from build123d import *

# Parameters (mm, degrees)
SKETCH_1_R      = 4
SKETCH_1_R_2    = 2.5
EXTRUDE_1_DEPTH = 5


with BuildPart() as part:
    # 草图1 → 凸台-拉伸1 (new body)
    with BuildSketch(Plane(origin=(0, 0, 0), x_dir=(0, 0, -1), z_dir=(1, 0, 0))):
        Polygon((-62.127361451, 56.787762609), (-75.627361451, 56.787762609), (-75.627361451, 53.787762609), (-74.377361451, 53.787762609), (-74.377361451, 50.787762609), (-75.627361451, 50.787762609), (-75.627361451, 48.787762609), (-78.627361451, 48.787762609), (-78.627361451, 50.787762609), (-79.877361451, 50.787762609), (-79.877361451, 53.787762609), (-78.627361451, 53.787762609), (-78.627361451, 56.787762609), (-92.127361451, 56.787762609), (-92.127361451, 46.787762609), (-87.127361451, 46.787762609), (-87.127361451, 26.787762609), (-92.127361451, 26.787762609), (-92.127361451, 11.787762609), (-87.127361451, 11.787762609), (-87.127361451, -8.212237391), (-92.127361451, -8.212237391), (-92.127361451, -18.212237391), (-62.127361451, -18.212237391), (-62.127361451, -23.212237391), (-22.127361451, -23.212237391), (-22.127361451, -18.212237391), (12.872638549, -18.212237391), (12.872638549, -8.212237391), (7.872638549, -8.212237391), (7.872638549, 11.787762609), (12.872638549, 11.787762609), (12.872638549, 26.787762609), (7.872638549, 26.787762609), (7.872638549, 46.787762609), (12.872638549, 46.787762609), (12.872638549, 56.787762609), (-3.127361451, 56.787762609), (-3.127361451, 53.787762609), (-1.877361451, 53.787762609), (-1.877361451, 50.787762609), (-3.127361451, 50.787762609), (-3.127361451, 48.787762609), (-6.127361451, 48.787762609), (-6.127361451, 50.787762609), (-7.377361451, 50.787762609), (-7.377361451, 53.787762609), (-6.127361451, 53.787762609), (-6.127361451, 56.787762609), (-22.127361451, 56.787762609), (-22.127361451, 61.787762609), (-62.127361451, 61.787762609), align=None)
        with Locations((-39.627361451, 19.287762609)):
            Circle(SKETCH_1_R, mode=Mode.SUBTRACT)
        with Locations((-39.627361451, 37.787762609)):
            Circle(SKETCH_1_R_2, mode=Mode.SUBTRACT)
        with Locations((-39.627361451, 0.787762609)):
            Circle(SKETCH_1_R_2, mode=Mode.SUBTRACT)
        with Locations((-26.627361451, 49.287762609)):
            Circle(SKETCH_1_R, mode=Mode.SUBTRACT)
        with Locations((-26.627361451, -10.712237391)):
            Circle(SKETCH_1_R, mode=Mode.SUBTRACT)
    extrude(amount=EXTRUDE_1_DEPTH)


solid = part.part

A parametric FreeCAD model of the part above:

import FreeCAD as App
import Part
import Sketcher
Q = App.Units.Quantity


def add_polygon(sketch, points):
    """Adds a closed chain of lines whose ends are joined by coincident constraints."""
    first, n = sketch.GeometryCount, len(points)
    for a, b in zip(points, points[1:] + points[:1]):
        sketch.addGeometry(Part.LineSegment(App.Vector(*a, 0), App.Vector(*b, 0)), False)
    for i in range(n):
        sketch.addConstraint(Sketcher.Constraint("Coincident", first + i, 2, first + (i + 1) % n, 1))

doc = App.newDocument("Part")
params = doc.addObject("Spreadsheet::Sheet", "Params")
for row, (alias, value) in enumerate([
    ("sketch1_diameter", "5 mm"),
    ("sketch1_diameter2", "8 mm"),
    ("sketch1_width", "3 mm"),
    ("sketch1_width2", "2 mm"),
    ("sketch1_width3", "10 mm"),
    ("pad1_length", "5 mm"),
], start=1):
    params.set(f"A{row}", alias)
    params.set(f"B{row}", "=" + value)
    params.setAlias(f"B{row}", alias)

body = doc.addObject("PartDesign::Body", "Body")

sketch1 = doc.addObject("Sketcher::SketchObject", "Sketch")
body.addObject(sketch1)
sketch1.AttachmentSupport = (doc.YZ_Plane, [""])
sketch1.MapMode = "FlatFace"
add_polygon(sketch1, [(56.787763, 62.127361), (56.787763, 75.627361), (53.787763, 75.627361), (53.787763, 74.377361), (50.787763, 74.377361), (50.787763, 75.627361), (48.787763, 75.627361), (48.787763, 78.627361), (50.787763, 78.627361), (50.787763, 79.877361), (53.787763, 79.877361), (53.787763, 78.627361), (56.787763, 78.627361), (56.787763, 92.127361), (46.787763, 92.127361), (46.787763, 87.127361), (26.787763, 87.127361), (26.787763, 92.127361), (11.787763, 92.127361), (11.787763, 87.127361), (-8.212237, 87.127361), (-8.212237, 92.127361), (-18.212237, 92.127361), (-18.212237, 62.127361), (-23.212237, 62.127361), (-23.212237, 22.127361), (-18.212237, 22.127361), (-18.212237, -12.872639), (-8.212237, -12.872639), (-8.212237, -7.872639), (11.787763, -7.872639), (11.787763, -12.872639), (26.787763, -12.872639), (26.787763, -7.872639), (46.787763, -7.872639), (46.787763, -12.872639), (56.787763, -12.872639), (56.787763, 3.127361), (53.787763, 3.127361), (53.787763, 1.877361), (50.787763, 1.877361), (50.787763, 3.127361), (48.787763, 3.127361), (48.787763, 6.127361), (50.787763, 6.127361), (50.787763, 7.377361), (53.787763, 7.377361), (53.787763, 6.127361), (56.787763, 6.127361), (56.787763, 22.127361), (61.787763, 22.127361), (61.787763, 62.127361)])
sketch1.addGeometry(Part.Circle(App.Vector(0.787763, 39.627361, 0), App.Vector(0, 0, 1), 2.5), False)
sketch1.addGeometry(Part.Circle(App.Vector(-10.712237, 26.627361, 0), App.Vector(0, 0, 1), 4), False)
sketch1.addGeometry(Part.Circle(App.Vector(19.287763, 39.627361, 0), App.Vector(0, 0, 1), 4), False)
sketch1.addGeometry(Part.Circle(App.Vector(37.787763, 39.627361, 0), App.Vector(0, 0, 1), 2.5), False)
sketch1.addGeometry(Part.Circle(App.Vector(49.287763, 26.627361, 0), App.Vector(0, 0, 1), 4), False)
sketch1.addConstraint([
    Sketcher.Constraint("Vertical", 0),
    Sketcher.Constraint("Horizontal", 1),
    Sketcher.Constraint("Vertical", 2),
    Sketcher.Constraint("Horizontal", 3),
    Sketcher.Constraint("Vertical", 4),
    Sketcher.Constraint("Horizontal", 5),
    Sketcher.Constraint("Vertical", 6),
    Sketcher.Constraint("Horizontal", 7),
    Sketcher.Constraint("Vertical", 8),
    Sketcher.Constraint("Horizontal", 9),
    Sketcher.Constraint("Vertical", 10),
    Sketcher.Constraint("Horizontal", 11),
    Sketcher.Constraint("Vertical", 12),
    Sketcher.Constraint("Horizontal", 13),
    Sketcher.Constraint("Vertical", 14),
    Sketcher.Constraint("Horizontal", 15),
    Sketcher.Constraint("Vertical", 16),
    Sketcher.Constraint("Horizontal", 17),
    Sketcher.Constraint("Vertical", 18),
    Sketcher.Constraint("Horizontal", 19),
    Sketcher.Constraint("Vertical", 20),
    Sketcher.Constraint("Horizontal", 21),
    Sketcher.Constraint("Vertical", 22),
    Sketcher.Constraint("Horizontal", 23),
    Sketcher.Constraint("Vertical", 24),
    Sketcher.Constraint("Horizontal", 25),
    Sketcher.Constraint("Vertical", 26),
    Sketcher.Constraint("Horizontal", 27),
    Sketcher.Constraint("Vertical", 28),
    Sketcher.Constraint("Horizontal", 29),
    Sketcher.Constraint("Vertical", 30),
    Sketcher.Constraint("Horizontal", 31),
    Sketcher.Constraint("Vertical", 32),
    Sketcher.Constraint("Horizontal", 33),
    Sketcher.Constraint("Vertical", 34),
    Sketcher.Constraint("Horizontal", 35),
    Sketcher.Constraint("Vertical", 36),
    Sketcher.Constraint("Horizontal", 37),
    Sketcher.Constraint("Vertical", 38),
    Sketcher.Constraint("Horizontal", 39),
    Sketcher.Constraint("Vertical", 40),
    Sketcher.Constraint("Horizontal", 41),
    Sketcher.Constraint("Vertical", 42),
    Sketcher.Constraint("Horizontal", 43),
    Sketcher.Constraint("Vertical", 44),
    Sketcher.Constraint("Horizontal", 45),
    Sketcher.Constraint("Vertical", 46),
    Sketcher.Constraint("Horizontal", 47),
    Sketcher.Constraint("Vertical", 48),
    Sketcher.Constraint("Horizontal", 49),
    Sketcher.Constraint("Vertical", 50),
    Sketcher.Constraint("Horizontal", 51),
    Sketcher.Constraint("Equal", 53, 54),
    Sketcher.Constraint("Equal", 52, 55),
    Sketcher.Constraint("Equal", 54, 56),
    Sketcher.Constraint("Horizontal", 52, 3, 54, 3),
    Sketcher.Constraint("Horizontal", 54, 3, 55, 3),
    Sketcher.Constraint("Horizontal", 53, 3, 56, 3),
    Sketcher.Constraint("Horizontal", 1, 2, 4, 2),
    Sketcher.Constraint("Horizontal", 7, 2, 10, 2),
    Sketcher.Constraint("Horizontal", 13, 2, 16, 2),
    Sketcher.Constraint("Horizontal", 15, 2, 18, 2),
    Sketcher.Constraint("Horizontal", 17, 2, 20, 2),
    Sketcher.Constraint("Horizontal", 27, 2, 30, 2),
    Sketcher.Constraint("Horizontal", 29, 2, 32, 2),
    Sketcher.Constraint("Horizontal", 31, 2, 34, 2),
    Sketcher.Constraint("Horizontal", 37, 2, 40, 2),
    Sketcher.Constraint("Horizontal", 43, 2, 46, 2),
    Sketcher.Constraint("Horizontal", 25, 2, 48, 2),
    Sketcher.Constraint("Horizontal", 23, 2, 50, 2),
    Sketcher.Constraint("Vertical", 4, 2, 7, 2),
    Sketcher.Constraint("Vertical", 2, 2, 9, 2),
    Sketcher.Constraint("Vertical", 0, 2, 11, 2),
    Sketcher.Constraint("Vertical", 22, 2, 25, 2),
    Sketcher.Constraint("Vertical", 20, 2, 27, 2),
    Sketcher.Constraint("Vertical", 18, 2, 29, 2),
    Sketcher.Constraint("Vertical", 16, 2, 31, 2),
    Sketcher.Constraint("Vertical", 14, 2, 33, 2),
    Sketcher.Constraint("Vertical", 12, 2, 35, 2),
    Sketcher.Constraint("Vertical", 10, 2, 37, 2),
    Sketcher.Constraint("Vertical", 8, 2, 39, 2),
    Sketcher.Constraint("Vertical", 6, 2, 41, 2),
    Sketcher.Constraint("Vertical", 40, 2, 43, 2),
    Sketcher.Constraint("Vertical", 38, 2, 45, 2),
    Sketcher.Constraint("Vertical", 36, 2, 47, 2),
    Sketcher.Constraint("Equal", 1, 3),
    Sketcher.Constraint("Equal", 15, 19),
    Sketcher.Constraint("Equal", 13, 21),
    Sketcher.Constraint("Equal", 25, 49),
    Sketcher.Constraint("Equal", 47, 6),
    Sketcher.Constraint("Equal", 4, 8),
    Sketcher.Constraint("Equal", 0, 12),
    Sketcher.Constraint("Equal", 51, 14),
    Sketcher.Constraint("Equal", 20, 28),
    Sketcher.Constraint("Equal", 10, 38),
    Sketcher.Constraint("Equal", 6, 42),
    Sketcher.Constraint("Equal", 40, 44),
    Sketcher.Constraint("Equal", 36, 48),
    Sketcher.Constraint("Diameter", 52, Q("5 mm")),
    Sketcher.Constraint("Diameter", 53, Q("8 mm")),
    Sketcher.Constraint("DistanceX", 1, 2, 1, 1, Q("3 mm")),
    Sketcher.Constraint("DistanceX", 5, 2, 5, 1, Q("2 mm")),
    Sketcher.Constraint("DistanceX", 13, 2, 13, 1, Q("10 mm")),
    Sketcher.Constraint("DistanceX", 15, 2, 15, 1, Q("20 mm")),
    Sketcher.Constraint("DistanceX", 17, 2, 17, 1, Q("15 mm")),
    Sketcher.Constraint("DistanceX", 23, 2, 23, 1, Q("5 mm")),
    Sketcher.Constraint("DistanceY", 22, 2, 22, 1, Q("30 mm")),
    Sketcher.Constraint("DistanceY", 24, 2, 24, 1, Q("40 mm")),
    Sketcher.Constraint("DistanceY", 26, 2, 26, 1, Q("35 mm")),
    Sketcher.Constraint("DistanceY", 53, 3, 52, 3, Q("13 mm")),
    Sketcher.Constraint("DistanceX", 53, 3, 54, 3, Q("30 mm")),
    Sketcher.Constraint("DistanceX", 52, 3, 55, 3, Q("37 mm")),
    Sketcher.Constraint("DistanceX", 54, 3, 56, 3, Q("30 mm")),
    Sketcher.Constraint("DistanceX", 55, 3, 0, 2, Q("19 mm")),
    Sketcher.Constraint("DistanceY", 55, 3, 0, 2, Q("36 mm")),
    Sketcher.Constraint("DistanceY", 2, 2, 2, 1, Q("1.25 mm")),
    Sketcher.Constraint("DistanceX", 53, 3, 52, 3, Q("11.5 mm")),
    Sketcher.Constraint("DistanceY", -1, 1, 52, 3, Q("39.627361 mm")),
    Sketcher.Constraint("DistanceX", -1, 1, 52, 3, Q("0.787763 mm")),
])
sketch1.setExpression("Constraints[150]", "Params.sketch1_diameter")
sketch1.setExpression("Constraints[151]", "Params.sketch1_diameter2")
sketch1.setExpression("Constraints[152]", "Params.sketch1_width")
sketch1.setExpression("Constraints[153]", "Params.sketch1_width2")
sketch1.setExpression("Constraints[154]", "Params.sketch1_width3")
pad1 = doc.addObject("PartDesign::Pad", "Pad")
body.addObject(pad1)
pad1.Profile = sketch1
pad1.setExpression("Length", "Params.pad1_length")

doc.recompute()
